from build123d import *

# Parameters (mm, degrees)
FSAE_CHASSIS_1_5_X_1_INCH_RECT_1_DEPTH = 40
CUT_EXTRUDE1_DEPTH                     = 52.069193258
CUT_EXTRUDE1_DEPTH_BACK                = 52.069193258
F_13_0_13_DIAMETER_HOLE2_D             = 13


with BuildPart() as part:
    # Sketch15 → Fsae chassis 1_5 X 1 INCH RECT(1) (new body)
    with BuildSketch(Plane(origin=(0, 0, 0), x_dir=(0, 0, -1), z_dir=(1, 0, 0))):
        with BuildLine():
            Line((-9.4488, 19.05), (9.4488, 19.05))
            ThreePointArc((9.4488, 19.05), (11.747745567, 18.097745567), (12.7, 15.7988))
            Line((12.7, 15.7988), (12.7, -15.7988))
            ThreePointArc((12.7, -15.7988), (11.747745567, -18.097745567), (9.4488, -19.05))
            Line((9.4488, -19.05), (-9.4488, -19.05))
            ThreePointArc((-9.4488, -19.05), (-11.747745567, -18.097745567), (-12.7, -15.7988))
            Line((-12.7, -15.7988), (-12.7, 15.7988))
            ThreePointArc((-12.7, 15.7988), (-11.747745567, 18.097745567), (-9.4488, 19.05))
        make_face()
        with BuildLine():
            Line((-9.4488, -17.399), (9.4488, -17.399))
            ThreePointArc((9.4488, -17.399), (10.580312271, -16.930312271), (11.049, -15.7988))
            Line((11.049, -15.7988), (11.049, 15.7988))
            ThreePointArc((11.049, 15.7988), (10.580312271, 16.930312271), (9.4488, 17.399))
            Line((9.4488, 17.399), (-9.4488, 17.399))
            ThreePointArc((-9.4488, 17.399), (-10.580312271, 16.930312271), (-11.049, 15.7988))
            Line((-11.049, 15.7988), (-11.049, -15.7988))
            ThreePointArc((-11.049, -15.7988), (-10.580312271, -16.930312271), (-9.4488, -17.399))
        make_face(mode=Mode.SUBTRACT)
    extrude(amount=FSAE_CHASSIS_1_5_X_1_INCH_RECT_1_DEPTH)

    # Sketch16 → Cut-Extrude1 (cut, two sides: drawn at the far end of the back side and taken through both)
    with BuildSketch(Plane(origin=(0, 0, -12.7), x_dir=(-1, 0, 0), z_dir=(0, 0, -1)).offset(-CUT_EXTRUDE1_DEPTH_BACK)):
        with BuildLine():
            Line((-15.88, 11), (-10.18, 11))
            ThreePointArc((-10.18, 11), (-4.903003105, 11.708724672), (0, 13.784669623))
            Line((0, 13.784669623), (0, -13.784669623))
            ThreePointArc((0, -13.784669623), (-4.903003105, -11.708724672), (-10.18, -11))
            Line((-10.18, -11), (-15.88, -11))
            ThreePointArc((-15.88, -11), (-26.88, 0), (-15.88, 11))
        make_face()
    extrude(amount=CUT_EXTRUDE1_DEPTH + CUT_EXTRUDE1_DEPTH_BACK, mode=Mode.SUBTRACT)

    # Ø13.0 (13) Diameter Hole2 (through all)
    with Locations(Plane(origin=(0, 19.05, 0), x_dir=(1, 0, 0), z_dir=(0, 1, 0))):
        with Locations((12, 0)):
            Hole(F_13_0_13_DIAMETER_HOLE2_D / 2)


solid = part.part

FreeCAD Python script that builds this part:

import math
import FreeCAD as App
import Part
import Sketcher
from FreeCAD import Vector

doc = App.newDocument("Part")
body = doc.addObject("PartDesign::Body", "Body")

# Sketch on YZ plane
sketch1 = body.newObject("Sketcher::SketchObject", "Sketch")
sketch1.AttachmentSupport = (doc.getObject("YZ_Plane"), [""])
sketch1.MapMode = "FlatFace"
sketch1.addGeometry(Part.LineSegment(Vector(19.1, -9.4, 0), Vector(19.1, 9.4, 0)), False)
sketch1.addGeometry(Part.ArcOfCircle(Part.Circle(Vector(15.8, 9.4, 0), Vector(0, 0, 1), 3.3), math.radians(0), math.radians(90)), False)
sketch1.addGeometry(Part.LineSegment(Vector(15.8, 12.7, 0), Vector(-15.8, 12.7, 0)), False)
sketch1.addGeometry(Part.ArcOfCircle(Part.Circle(Vector(-15.8, 9.4, 0), Vector(0, 0, 1), 3.3), math.radians(90), math.radians(180)), False)
sketch1.addGeometry(Part.LineSegment(Vector(-19.1, 9.4, 0), Vector(-19.1, -9.4, 0)), False)
sketch1.addGeometry(Part.ArcOfCircle(Part.Circle(Vector(-15.8, -9.4, 0), Vector(0, 0, 1), 3.3), math.radians(180), math.radians(270)), False)
sketch1.addGeometry(Part.LineSegment(Vector(-15.8, -12.7, 0), Vector(15.8, -12.7, 0)), False)
sketch1.addGeometry(Part.ArcOfCircle(Part.Circle(Vector(15.8, -9.4, 0), Vector(0, 0, 1), 3.3), math.radians(-90), math.radians(0)), False)
sketch1.addGeometry(Part.ArcOfCircle(Part.Circle(Vector(-15.8, 9.4, 0), Vector(0, 0, 1), 1.6), math.radians(90), math.radians(180)), False)
sketch1.addGeometry(Part.LineSegment(Vector(-15.8, 11, 0), Vector(15.8, 11, 0)), False)
sketch1.addGeometry(Part.ArcOfCircle(Part.Circle(Vector(15.8, 9.4, 0), Vector(0, 0, 1), 1.6), math.radians(0), math.radians(90)), False)
sketch1.addGeometry(Part.LineSegment(Vector(17.4, 9.4, 0), Vector(17.4, -9.4, 0)), False)
sketch1.addGeometry(Part.ArcOfCircle(Part.Circle(Vector(15.8, -9.4, 0), Vector(0, 0, 1), 1.6), math.radians(-90), math.radians(0)), False)
sketch1.addGeometry(Part.LineSegment(Vector(15.8, -11, 0), Vector(-15.8, -11, 0)), False)
sketch1.addGeometry(Part.ArcOfCircle(Part.Circle(Vector(-15.8, -9.4, 0), Vector(0, 0, 1), 1.6), math.radians(-180), math.radians(-90)), False)
sketch1.addGeometry(Part.LineSegment(Vector(-17.4, -9.4, 0), Vector(-17.4, 9.4, 0)), False)
sketch1.addConstraint(Sketcher.Constraint("Tangent", 0, 2, 1, 1))
sketch1.addConstraint(Sketcher.Constraint("Tangent", 1, 2, 2, 1))
sketch1.addConstraint(Sketcher.Constraint("Tangent", 2, 2, 3, 1))
sketch1.addConstraint(Sketcher.Constraint("Tangent", 3, 2, 4, 1))
sketch1.addConstraint(Sketcher.Constraint("Tangent", 4, 2, 5, 1))
sketch1.addConstraint(Sketcher.Constraint("Tangent", 5, 2, 6, 1))
sketch1.addConstraint(Sketcher.Constraint("Tangent", 6, 2, 7, 1))
sketch1.addConstraint(Sketcher.Constraint("Tangent", 7, 2, 0, 1))
sketch1.addConstraint(Sketcher.Constraint("Tangent", 8, 1, 9, 1))
sketch1.addConstraint(Sketcher.Constraint("Tangent", 9, 2, 10, 2))
sketch1.addConstraint(Sketcher.Constraint("Tangent", 10, 1, 11, 1))
sketch1.addConstraint(Sketcher.Constraint("Tangent", 11, 2, 12, 2))
sketch1.addConstraint(Sketcher.Constraint("Tangent", 12, 1, 13, 1))
sketch1.addConstraint(Sketcher.Constraint("Tangent", 13, 2, 14, 2))
sketch1.addConstraint(Sketcher.Constraint("Tangent", 14, 1, 15, 1))
sketch1.addConstraint(Sketcher.Constraint("Tangent", 15, 2, 8, 2))
sketch1.addConstraint(Sketcher.Constraint("Vertical", 0))
sketch1.addConstraint(Sketcher.Constraint("Horizontal", 2))
sketch1.addConstraint(Sketcher.Constraint("Vertical", 4))
sketch1.addConstraint(Sketcher.Constraint("Horizontal", 6))
sketch1.addConstraint(Sketcher.Constraint("Horizontal", 9))
sketch1.addConstraint(Sketcher.Constraint("Vertical", 11))
sketch1.addConstraint(Sketcher.Constraint("Horizontal", 13))
sketch1.addConstraint(Sketcher.Constraint("Vertical", 15))
sketch1.addConstraint(Sketcher.Constraint("Coincident", 8, 3, 3, 3))
sketch1.addConstraint(Sketcher.Constraint("Coincident", 10, 3, 1, 3))
sketch1.addConstraint(Sketcher.Constraint("Coincident", 12, 3, 7, 3))
sketch1.addConstraint(Sketcher.Constraint("Equal", 1, 3))
sketch1.addConstraint(Sketcher.Constraint("Equal", 3, 5))
sketch1.addConstraint(Sketcher.Constraint("Equal", 5, 7))
sketch1.addConstraint(Sketcher.Constraint("Equal", 12, 14))
sketch1.addConstraint(Sketcher.Constraint("Symmetric", 1, 3, 5, 3, -1, 1))
sketch1.addConstraint(Sketcher.Constraint("DistanceY", -1, 1, 1, 2, 12.7))
sketch1.addConstraint(Sketcher.Constraint("Radius", 1, 3.2512))
sketch1.addConstraint(Sketcher.Constraint("Radius", 8, 1.6002))
sketch1.addConstraint(Sketcher.Constraint("DistanceX", -1, 1, 0, 2, 19.05))
pad1 = body.newObject("PartDesign::Pad", "Pad")
pad1.Profile = sketch1
pad1.Length = 40

# Sketch on XY plane
sketch2 = body.newObject("Sketcher::SketchObject", "Sketch001")
sketch2.AttachmentSupport = (doc.getObject("XY_Plane"), [""])
sketch2.MapMode = "FlatFace"
sketch2.AttachmentOffset = App.Placement(Vector(0, 0, -12.7), App.Rotation())
sketch2.addGeometry(Part.LineSegment(Vector(10, 11, 0), Vector(16, 11, 0)), False)
sketch2.addGeometry(Part.ArcOfCircle(Part.Circle(Vector(16, 0, 0), Vector(0, 0, 1), 11), math.radians(-90), math.radians(90)), False)
sketch2.addGeometry(Part.LineSegment(Vector(16, -11, 0), Vector(10, -11, 0)), False)
sketch2.addGeometry(Part.ArcOfCircle(Part.Circle(Vector(10, -31, 0), Vector(0, 0, 1), 20), math.radians(90), math.radians(121)), False)
sketch2.addGeometry(Part.LineSegment(Vector(0, -14, 0), Vector(0, 14, 0)), False)
sketch2.addGeometry(Part.ArcOfCircle(Part.Circle(Vector(10, 31, 0), Vector(0, 0, 1), 20), math.radians(-121), math.radians(-90)), False)
sketch2.addConstraint(Sketcher.Constraint("Tangent", 0, 2, 1, 2))
sketch2.addConstraint(Sketcher.Constraint("Tangent", 1, 1, 2, 1))
sketch2.addConstraint(Sketcher.Constraint("Tangent", 2, 2, 3, 1))
sketch2.addConstraint(Sketcher.Constraint("Coincident", 3, 2, 4, 1))
sketch2.addConstraint(Sketcher.Constraint("Coincident", 4, 2, 5, 1))
sketch2.addConstraint(Sketcher.Constraint("Tangent", 5, 2, 0, 1))
sketch2.addConstraint(Sketcher.Constraint("Horizontal", 0))
sketch2.addConstraint(Sketcher.Constraint("Horizontal", 2))
sketch2.addConstraint(Sketcher.Constraint("Vertical", 4))
sketch2.addConstraint(Sketcher.Constraint("Equal", 3, 5))
sketch2.addConstraint(Sketcher.Constraint("Symmetric", 3, 2, 4, 2, -1, 1))
sketch2.addConstraint(Sketcher.Constraint("PointOnObject", 1, 3, -1))
sketch2.addConstraint(Sketcher.Constraint("Radius", 1, 11.0))
sketch2.addConstraint(Sketcher.Constraint("Radius", 3, 20.0))
sketch2.addConstraint(Sketcher.Constraint("DistanceX", 0, 1, 0, 2, 5.7))
sketch2.addConstraint(Sketcher.Constraint("DistanceX", -1, 1, 1, 3, 15.88))
pocket1 = body.newObject("PartDesign::Pocket", "Pocket")
pocket1.Profile = sketch2
pocket1.Type = "ThroughAll"
pocket1.Midplane = True

# Sketch on XZ plane
sketch3 = body.newObject("Sketcher::SketchObject", "Sketch002")
sketch3.AttachmentSupport = (doc.getObject("XZ_Plane"), [""])
sketch3.MapMode = "FlatFace"
sketch3.AttachmentOffset = App.Placement(Vector(0, 0, -19.05), App.Rotation())
sketch3.addGeometry(Part.Circle(Vector(12, 0, 0), Vector(0, 0, 1), 6), False)
sketch3.addConstraint(Sketcher.Constraint("PointOnObject", 0, 3, -1))
sketch3.addConstraint(Sketcher.Constraint("Diameter", 0, 13.0))
sketch3.addConstraint(Sketcher.Constraint("DistanceX", -1, 1, 0, 3, 12.0))
doc.recompute()
hole = body.newObject("PartDesign::Hole", "Hole")
hole.Profile = sketch3
hole.ThreadType = "None"
hole.Diameter = 13
hole.DepthType = "ThroughAll"
hole.Reversed = True

doc.recompute()
